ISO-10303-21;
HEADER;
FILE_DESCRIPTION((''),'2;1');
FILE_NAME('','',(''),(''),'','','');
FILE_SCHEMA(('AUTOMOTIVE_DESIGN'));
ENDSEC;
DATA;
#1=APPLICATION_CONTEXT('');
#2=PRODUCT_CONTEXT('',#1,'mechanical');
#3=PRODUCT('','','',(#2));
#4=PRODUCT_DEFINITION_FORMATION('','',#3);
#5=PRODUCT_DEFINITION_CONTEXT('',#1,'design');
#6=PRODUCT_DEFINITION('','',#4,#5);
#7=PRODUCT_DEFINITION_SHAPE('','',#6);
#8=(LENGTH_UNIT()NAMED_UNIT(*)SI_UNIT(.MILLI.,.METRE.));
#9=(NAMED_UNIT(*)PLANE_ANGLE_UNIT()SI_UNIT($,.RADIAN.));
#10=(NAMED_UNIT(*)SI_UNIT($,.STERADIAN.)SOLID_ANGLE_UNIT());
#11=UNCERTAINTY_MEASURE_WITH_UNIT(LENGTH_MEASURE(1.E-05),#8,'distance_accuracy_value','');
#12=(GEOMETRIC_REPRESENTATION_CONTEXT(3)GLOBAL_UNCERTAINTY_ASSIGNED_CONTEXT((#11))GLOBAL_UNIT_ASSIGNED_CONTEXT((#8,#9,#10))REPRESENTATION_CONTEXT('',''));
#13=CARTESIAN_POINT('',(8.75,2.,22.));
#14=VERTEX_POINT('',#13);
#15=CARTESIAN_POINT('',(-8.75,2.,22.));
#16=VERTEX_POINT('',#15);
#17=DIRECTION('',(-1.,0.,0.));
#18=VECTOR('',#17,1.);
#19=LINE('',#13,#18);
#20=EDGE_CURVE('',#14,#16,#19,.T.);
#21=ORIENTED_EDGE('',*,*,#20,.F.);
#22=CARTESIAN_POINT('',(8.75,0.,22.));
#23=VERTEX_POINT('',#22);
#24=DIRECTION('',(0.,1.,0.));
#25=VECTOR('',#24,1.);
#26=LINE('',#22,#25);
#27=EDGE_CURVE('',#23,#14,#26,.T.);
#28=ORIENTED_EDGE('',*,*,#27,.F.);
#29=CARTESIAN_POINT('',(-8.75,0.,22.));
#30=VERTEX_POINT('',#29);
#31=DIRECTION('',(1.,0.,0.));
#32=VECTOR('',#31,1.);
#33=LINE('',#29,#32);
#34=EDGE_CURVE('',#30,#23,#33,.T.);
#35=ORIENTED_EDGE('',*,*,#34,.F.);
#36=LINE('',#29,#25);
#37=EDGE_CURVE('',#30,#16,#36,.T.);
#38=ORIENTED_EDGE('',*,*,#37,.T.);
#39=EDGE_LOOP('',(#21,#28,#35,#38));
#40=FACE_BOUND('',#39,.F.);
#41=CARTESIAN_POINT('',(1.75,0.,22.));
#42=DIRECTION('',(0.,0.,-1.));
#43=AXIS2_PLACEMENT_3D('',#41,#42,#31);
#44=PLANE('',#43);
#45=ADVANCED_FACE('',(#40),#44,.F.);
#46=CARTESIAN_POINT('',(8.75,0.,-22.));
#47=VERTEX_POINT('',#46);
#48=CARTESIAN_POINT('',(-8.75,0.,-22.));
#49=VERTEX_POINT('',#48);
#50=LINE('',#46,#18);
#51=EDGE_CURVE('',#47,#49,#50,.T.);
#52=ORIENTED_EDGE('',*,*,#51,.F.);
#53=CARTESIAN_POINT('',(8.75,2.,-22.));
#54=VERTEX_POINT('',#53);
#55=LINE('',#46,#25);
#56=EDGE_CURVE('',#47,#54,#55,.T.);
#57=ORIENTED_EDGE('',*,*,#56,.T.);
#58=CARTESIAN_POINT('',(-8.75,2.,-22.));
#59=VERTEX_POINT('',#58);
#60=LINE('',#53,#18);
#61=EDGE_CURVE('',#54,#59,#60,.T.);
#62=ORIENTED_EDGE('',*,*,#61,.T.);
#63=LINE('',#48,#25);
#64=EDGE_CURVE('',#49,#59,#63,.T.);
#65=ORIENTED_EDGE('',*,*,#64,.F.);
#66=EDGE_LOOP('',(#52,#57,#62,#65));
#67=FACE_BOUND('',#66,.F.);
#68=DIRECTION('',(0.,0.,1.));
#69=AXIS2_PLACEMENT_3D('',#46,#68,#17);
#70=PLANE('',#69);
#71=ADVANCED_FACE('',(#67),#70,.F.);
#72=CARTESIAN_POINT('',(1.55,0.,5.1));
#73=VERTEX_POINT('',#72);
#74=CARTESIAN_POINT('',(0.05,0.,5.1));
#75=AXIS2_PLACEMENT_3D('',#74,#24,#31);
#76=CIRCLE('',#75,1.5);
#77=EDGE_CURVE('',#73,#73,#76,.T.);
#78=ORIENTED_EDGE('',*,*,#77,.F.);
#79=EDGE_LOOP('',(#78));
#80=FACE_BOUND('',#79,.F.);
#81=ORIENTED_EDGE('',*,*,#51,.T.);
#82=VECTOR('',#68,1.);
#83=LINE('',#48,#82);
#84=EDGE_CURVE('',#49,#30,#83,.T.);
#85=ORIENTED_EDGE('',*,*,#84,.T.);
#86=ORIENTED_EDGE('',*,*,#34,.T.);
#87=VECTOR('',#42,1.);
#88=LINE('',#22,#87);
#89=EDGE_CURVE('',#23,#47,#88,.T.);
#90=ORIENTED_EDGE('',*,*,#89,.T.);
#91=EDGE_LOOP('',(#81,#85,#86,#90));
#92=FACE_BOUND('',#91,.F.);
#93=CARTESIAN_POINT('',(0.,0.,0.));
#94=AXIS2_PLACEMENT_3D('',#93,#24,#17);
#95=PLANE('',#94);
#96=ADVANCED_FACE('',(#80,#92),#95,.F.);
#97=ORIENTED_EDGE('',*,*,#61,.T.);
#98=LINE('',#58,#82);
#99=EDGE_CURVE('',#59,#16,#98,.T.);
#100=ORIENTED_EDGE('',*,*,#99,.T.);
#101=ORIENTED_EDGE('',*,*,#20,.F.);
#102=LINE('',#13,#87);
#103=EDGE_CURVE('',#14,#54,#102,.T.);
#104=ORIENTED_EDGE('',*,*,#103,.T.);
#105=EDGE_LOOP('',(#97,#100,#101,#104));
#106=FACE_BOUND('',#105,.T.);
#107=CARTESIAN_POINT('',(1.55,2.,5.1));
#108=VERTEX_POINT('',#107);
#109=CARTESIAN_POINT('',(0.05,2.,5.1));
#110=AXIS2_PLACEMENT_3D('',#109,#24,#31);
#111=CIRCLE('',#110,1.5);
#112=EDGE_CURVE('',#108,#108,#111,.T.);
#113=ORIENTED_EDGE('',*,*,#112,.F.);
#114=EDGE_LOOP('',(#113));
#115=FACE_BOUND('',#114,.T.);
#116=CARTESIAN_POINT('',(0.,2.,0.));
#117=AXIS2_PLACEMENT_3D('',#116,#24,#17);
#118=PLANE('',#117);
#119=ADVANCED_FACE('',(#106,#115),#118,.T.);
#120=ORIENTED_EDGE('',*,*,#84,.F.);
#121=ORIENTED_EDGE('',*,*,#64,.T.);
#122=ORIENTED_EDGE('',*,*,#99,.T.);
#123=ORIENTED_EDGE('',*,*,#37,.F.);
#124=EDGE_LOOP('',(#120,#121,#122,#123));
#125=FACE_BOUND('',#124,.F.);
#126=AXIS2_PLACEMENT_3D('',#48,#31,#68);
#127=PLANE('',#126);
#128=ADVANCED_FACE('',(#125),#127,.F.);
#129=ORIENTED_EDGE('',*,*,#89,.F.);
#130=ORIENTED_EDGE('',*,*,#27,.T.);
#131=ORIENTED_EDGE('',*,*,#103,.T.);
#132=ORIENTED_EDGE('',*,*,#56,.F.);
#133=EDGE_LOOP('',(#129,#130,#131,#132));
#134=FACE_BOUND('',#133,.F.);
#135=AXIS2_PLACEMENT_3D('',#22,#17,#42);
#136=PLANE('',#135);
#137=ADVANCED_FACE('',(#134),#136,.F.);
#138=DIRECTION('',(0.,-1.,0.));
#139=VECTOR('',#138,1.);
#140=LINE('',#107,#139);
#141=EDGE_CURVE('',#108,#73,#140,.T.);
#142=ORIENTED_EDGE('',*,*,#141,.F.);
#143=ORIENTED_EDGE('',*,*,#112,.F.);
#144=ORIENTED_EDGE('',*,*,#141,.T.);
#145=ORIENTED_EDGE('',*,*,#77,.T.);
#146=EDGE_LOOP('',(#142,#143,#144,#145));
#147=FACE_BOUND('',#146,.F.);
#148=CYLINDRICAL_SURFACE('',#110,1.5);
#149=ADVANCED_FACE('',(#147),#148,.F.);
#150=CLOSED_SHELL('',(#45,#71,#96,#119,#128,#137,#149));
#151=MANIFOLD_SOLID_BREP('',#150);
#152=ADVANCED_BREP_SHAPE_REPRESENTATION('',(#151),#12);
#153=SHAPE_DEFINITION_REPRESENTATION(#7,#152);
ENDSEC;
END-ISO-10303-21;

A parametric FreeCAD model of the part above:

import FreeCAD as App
import Part
import Sketcher
from FreeCAD import Vector


def add_polygon(sketch, points):
    """Adds a closed chain of lines whose ends are joined by coincident constraints."""
    first, n = sketch.GeometryCount, len(points)
    for a, b in zip(points, points[1:] + points[:1]):
        sketch.addGeometry(Part.LineSegment(App.Vector(*a, 0), App.Vector(*b, 0)), False)
    for i in range(n):
        sketch.addConstraint(Sketcher.Constraint("Coincident", first + i, 2, first + (i + 1) % n, 1))

doc = App.newDocument("Part")
body = doc.addObject("PartDesign::Body", "Body")

# Sketch on XZ plane
sketch1 = body.newObject("Sketcher::SketchObject", "Sketch")
sketch1.AttachmentSupport = (doc.getObject("XZ_Plane"), [""])
sketch1.MapMode = "FlatFace"
add_polygon(sketch1, [(-9, 22), (9, 22), (9, -22), (-9, -22)])  # lines 0-3
sketch1.addConstraint([
    Sketcher.Constraint("Horizontal", 0),
    Sketcher.Constraint("Vertical", 1),
    Sketcher.Constraint("Horizontal", 2),
    Sketcher.Constraint("Vertical", 3),
    Sketcher.Constraint("Symmetric", 0, 2, 2, 2, -1, 1),
    Sketcher.Constraint("DistanceY", 1, 2, 1, 1, 44.0),
    Sketcher.Constraint("DistanceX", 0, 1, 0, 2, 17.5),
])
pad1 = body.newObject("PartDesign::Pad", "Pad")
pad1.Profile = sketch1
pad1.Length = 2
pad1.Reversed = True

# Sketch on XZ plane
sketch2 = body.newObject("Sketcher::SketchObject", "Sketch001")
sketch2.AttachmentSupport = (doc.getObject("XZ_Plane"), [""])
sketch2.MapMode = "FlatFace"
sketch2.AttachmentOffset = App.Placement(Vector(0, 0, -2), App.Rotation())
sketch2.addGeometry(Part.Circle(Vector(0.1, 5.1, 0), Vector(0, 0, 1), 1.5), False)
sketch2.addConstraint([
    Sketcher.Constraint("Diameter", 0, 3.0),
    Sketcher.Constraint("DistanceY", -1, 1, 0, 3, 5.1),
    Sketcher.Constraint("DistanceX", -1, 1, 0, 3, 0.05),
])
pocket1 = body.newObject("PartDesign::Pocket", "Pocket")
pocket1.Profile = sketch2
pocket1.Type = "ThroughAll"
pocket1.Reversed = True

doc.recompute()
